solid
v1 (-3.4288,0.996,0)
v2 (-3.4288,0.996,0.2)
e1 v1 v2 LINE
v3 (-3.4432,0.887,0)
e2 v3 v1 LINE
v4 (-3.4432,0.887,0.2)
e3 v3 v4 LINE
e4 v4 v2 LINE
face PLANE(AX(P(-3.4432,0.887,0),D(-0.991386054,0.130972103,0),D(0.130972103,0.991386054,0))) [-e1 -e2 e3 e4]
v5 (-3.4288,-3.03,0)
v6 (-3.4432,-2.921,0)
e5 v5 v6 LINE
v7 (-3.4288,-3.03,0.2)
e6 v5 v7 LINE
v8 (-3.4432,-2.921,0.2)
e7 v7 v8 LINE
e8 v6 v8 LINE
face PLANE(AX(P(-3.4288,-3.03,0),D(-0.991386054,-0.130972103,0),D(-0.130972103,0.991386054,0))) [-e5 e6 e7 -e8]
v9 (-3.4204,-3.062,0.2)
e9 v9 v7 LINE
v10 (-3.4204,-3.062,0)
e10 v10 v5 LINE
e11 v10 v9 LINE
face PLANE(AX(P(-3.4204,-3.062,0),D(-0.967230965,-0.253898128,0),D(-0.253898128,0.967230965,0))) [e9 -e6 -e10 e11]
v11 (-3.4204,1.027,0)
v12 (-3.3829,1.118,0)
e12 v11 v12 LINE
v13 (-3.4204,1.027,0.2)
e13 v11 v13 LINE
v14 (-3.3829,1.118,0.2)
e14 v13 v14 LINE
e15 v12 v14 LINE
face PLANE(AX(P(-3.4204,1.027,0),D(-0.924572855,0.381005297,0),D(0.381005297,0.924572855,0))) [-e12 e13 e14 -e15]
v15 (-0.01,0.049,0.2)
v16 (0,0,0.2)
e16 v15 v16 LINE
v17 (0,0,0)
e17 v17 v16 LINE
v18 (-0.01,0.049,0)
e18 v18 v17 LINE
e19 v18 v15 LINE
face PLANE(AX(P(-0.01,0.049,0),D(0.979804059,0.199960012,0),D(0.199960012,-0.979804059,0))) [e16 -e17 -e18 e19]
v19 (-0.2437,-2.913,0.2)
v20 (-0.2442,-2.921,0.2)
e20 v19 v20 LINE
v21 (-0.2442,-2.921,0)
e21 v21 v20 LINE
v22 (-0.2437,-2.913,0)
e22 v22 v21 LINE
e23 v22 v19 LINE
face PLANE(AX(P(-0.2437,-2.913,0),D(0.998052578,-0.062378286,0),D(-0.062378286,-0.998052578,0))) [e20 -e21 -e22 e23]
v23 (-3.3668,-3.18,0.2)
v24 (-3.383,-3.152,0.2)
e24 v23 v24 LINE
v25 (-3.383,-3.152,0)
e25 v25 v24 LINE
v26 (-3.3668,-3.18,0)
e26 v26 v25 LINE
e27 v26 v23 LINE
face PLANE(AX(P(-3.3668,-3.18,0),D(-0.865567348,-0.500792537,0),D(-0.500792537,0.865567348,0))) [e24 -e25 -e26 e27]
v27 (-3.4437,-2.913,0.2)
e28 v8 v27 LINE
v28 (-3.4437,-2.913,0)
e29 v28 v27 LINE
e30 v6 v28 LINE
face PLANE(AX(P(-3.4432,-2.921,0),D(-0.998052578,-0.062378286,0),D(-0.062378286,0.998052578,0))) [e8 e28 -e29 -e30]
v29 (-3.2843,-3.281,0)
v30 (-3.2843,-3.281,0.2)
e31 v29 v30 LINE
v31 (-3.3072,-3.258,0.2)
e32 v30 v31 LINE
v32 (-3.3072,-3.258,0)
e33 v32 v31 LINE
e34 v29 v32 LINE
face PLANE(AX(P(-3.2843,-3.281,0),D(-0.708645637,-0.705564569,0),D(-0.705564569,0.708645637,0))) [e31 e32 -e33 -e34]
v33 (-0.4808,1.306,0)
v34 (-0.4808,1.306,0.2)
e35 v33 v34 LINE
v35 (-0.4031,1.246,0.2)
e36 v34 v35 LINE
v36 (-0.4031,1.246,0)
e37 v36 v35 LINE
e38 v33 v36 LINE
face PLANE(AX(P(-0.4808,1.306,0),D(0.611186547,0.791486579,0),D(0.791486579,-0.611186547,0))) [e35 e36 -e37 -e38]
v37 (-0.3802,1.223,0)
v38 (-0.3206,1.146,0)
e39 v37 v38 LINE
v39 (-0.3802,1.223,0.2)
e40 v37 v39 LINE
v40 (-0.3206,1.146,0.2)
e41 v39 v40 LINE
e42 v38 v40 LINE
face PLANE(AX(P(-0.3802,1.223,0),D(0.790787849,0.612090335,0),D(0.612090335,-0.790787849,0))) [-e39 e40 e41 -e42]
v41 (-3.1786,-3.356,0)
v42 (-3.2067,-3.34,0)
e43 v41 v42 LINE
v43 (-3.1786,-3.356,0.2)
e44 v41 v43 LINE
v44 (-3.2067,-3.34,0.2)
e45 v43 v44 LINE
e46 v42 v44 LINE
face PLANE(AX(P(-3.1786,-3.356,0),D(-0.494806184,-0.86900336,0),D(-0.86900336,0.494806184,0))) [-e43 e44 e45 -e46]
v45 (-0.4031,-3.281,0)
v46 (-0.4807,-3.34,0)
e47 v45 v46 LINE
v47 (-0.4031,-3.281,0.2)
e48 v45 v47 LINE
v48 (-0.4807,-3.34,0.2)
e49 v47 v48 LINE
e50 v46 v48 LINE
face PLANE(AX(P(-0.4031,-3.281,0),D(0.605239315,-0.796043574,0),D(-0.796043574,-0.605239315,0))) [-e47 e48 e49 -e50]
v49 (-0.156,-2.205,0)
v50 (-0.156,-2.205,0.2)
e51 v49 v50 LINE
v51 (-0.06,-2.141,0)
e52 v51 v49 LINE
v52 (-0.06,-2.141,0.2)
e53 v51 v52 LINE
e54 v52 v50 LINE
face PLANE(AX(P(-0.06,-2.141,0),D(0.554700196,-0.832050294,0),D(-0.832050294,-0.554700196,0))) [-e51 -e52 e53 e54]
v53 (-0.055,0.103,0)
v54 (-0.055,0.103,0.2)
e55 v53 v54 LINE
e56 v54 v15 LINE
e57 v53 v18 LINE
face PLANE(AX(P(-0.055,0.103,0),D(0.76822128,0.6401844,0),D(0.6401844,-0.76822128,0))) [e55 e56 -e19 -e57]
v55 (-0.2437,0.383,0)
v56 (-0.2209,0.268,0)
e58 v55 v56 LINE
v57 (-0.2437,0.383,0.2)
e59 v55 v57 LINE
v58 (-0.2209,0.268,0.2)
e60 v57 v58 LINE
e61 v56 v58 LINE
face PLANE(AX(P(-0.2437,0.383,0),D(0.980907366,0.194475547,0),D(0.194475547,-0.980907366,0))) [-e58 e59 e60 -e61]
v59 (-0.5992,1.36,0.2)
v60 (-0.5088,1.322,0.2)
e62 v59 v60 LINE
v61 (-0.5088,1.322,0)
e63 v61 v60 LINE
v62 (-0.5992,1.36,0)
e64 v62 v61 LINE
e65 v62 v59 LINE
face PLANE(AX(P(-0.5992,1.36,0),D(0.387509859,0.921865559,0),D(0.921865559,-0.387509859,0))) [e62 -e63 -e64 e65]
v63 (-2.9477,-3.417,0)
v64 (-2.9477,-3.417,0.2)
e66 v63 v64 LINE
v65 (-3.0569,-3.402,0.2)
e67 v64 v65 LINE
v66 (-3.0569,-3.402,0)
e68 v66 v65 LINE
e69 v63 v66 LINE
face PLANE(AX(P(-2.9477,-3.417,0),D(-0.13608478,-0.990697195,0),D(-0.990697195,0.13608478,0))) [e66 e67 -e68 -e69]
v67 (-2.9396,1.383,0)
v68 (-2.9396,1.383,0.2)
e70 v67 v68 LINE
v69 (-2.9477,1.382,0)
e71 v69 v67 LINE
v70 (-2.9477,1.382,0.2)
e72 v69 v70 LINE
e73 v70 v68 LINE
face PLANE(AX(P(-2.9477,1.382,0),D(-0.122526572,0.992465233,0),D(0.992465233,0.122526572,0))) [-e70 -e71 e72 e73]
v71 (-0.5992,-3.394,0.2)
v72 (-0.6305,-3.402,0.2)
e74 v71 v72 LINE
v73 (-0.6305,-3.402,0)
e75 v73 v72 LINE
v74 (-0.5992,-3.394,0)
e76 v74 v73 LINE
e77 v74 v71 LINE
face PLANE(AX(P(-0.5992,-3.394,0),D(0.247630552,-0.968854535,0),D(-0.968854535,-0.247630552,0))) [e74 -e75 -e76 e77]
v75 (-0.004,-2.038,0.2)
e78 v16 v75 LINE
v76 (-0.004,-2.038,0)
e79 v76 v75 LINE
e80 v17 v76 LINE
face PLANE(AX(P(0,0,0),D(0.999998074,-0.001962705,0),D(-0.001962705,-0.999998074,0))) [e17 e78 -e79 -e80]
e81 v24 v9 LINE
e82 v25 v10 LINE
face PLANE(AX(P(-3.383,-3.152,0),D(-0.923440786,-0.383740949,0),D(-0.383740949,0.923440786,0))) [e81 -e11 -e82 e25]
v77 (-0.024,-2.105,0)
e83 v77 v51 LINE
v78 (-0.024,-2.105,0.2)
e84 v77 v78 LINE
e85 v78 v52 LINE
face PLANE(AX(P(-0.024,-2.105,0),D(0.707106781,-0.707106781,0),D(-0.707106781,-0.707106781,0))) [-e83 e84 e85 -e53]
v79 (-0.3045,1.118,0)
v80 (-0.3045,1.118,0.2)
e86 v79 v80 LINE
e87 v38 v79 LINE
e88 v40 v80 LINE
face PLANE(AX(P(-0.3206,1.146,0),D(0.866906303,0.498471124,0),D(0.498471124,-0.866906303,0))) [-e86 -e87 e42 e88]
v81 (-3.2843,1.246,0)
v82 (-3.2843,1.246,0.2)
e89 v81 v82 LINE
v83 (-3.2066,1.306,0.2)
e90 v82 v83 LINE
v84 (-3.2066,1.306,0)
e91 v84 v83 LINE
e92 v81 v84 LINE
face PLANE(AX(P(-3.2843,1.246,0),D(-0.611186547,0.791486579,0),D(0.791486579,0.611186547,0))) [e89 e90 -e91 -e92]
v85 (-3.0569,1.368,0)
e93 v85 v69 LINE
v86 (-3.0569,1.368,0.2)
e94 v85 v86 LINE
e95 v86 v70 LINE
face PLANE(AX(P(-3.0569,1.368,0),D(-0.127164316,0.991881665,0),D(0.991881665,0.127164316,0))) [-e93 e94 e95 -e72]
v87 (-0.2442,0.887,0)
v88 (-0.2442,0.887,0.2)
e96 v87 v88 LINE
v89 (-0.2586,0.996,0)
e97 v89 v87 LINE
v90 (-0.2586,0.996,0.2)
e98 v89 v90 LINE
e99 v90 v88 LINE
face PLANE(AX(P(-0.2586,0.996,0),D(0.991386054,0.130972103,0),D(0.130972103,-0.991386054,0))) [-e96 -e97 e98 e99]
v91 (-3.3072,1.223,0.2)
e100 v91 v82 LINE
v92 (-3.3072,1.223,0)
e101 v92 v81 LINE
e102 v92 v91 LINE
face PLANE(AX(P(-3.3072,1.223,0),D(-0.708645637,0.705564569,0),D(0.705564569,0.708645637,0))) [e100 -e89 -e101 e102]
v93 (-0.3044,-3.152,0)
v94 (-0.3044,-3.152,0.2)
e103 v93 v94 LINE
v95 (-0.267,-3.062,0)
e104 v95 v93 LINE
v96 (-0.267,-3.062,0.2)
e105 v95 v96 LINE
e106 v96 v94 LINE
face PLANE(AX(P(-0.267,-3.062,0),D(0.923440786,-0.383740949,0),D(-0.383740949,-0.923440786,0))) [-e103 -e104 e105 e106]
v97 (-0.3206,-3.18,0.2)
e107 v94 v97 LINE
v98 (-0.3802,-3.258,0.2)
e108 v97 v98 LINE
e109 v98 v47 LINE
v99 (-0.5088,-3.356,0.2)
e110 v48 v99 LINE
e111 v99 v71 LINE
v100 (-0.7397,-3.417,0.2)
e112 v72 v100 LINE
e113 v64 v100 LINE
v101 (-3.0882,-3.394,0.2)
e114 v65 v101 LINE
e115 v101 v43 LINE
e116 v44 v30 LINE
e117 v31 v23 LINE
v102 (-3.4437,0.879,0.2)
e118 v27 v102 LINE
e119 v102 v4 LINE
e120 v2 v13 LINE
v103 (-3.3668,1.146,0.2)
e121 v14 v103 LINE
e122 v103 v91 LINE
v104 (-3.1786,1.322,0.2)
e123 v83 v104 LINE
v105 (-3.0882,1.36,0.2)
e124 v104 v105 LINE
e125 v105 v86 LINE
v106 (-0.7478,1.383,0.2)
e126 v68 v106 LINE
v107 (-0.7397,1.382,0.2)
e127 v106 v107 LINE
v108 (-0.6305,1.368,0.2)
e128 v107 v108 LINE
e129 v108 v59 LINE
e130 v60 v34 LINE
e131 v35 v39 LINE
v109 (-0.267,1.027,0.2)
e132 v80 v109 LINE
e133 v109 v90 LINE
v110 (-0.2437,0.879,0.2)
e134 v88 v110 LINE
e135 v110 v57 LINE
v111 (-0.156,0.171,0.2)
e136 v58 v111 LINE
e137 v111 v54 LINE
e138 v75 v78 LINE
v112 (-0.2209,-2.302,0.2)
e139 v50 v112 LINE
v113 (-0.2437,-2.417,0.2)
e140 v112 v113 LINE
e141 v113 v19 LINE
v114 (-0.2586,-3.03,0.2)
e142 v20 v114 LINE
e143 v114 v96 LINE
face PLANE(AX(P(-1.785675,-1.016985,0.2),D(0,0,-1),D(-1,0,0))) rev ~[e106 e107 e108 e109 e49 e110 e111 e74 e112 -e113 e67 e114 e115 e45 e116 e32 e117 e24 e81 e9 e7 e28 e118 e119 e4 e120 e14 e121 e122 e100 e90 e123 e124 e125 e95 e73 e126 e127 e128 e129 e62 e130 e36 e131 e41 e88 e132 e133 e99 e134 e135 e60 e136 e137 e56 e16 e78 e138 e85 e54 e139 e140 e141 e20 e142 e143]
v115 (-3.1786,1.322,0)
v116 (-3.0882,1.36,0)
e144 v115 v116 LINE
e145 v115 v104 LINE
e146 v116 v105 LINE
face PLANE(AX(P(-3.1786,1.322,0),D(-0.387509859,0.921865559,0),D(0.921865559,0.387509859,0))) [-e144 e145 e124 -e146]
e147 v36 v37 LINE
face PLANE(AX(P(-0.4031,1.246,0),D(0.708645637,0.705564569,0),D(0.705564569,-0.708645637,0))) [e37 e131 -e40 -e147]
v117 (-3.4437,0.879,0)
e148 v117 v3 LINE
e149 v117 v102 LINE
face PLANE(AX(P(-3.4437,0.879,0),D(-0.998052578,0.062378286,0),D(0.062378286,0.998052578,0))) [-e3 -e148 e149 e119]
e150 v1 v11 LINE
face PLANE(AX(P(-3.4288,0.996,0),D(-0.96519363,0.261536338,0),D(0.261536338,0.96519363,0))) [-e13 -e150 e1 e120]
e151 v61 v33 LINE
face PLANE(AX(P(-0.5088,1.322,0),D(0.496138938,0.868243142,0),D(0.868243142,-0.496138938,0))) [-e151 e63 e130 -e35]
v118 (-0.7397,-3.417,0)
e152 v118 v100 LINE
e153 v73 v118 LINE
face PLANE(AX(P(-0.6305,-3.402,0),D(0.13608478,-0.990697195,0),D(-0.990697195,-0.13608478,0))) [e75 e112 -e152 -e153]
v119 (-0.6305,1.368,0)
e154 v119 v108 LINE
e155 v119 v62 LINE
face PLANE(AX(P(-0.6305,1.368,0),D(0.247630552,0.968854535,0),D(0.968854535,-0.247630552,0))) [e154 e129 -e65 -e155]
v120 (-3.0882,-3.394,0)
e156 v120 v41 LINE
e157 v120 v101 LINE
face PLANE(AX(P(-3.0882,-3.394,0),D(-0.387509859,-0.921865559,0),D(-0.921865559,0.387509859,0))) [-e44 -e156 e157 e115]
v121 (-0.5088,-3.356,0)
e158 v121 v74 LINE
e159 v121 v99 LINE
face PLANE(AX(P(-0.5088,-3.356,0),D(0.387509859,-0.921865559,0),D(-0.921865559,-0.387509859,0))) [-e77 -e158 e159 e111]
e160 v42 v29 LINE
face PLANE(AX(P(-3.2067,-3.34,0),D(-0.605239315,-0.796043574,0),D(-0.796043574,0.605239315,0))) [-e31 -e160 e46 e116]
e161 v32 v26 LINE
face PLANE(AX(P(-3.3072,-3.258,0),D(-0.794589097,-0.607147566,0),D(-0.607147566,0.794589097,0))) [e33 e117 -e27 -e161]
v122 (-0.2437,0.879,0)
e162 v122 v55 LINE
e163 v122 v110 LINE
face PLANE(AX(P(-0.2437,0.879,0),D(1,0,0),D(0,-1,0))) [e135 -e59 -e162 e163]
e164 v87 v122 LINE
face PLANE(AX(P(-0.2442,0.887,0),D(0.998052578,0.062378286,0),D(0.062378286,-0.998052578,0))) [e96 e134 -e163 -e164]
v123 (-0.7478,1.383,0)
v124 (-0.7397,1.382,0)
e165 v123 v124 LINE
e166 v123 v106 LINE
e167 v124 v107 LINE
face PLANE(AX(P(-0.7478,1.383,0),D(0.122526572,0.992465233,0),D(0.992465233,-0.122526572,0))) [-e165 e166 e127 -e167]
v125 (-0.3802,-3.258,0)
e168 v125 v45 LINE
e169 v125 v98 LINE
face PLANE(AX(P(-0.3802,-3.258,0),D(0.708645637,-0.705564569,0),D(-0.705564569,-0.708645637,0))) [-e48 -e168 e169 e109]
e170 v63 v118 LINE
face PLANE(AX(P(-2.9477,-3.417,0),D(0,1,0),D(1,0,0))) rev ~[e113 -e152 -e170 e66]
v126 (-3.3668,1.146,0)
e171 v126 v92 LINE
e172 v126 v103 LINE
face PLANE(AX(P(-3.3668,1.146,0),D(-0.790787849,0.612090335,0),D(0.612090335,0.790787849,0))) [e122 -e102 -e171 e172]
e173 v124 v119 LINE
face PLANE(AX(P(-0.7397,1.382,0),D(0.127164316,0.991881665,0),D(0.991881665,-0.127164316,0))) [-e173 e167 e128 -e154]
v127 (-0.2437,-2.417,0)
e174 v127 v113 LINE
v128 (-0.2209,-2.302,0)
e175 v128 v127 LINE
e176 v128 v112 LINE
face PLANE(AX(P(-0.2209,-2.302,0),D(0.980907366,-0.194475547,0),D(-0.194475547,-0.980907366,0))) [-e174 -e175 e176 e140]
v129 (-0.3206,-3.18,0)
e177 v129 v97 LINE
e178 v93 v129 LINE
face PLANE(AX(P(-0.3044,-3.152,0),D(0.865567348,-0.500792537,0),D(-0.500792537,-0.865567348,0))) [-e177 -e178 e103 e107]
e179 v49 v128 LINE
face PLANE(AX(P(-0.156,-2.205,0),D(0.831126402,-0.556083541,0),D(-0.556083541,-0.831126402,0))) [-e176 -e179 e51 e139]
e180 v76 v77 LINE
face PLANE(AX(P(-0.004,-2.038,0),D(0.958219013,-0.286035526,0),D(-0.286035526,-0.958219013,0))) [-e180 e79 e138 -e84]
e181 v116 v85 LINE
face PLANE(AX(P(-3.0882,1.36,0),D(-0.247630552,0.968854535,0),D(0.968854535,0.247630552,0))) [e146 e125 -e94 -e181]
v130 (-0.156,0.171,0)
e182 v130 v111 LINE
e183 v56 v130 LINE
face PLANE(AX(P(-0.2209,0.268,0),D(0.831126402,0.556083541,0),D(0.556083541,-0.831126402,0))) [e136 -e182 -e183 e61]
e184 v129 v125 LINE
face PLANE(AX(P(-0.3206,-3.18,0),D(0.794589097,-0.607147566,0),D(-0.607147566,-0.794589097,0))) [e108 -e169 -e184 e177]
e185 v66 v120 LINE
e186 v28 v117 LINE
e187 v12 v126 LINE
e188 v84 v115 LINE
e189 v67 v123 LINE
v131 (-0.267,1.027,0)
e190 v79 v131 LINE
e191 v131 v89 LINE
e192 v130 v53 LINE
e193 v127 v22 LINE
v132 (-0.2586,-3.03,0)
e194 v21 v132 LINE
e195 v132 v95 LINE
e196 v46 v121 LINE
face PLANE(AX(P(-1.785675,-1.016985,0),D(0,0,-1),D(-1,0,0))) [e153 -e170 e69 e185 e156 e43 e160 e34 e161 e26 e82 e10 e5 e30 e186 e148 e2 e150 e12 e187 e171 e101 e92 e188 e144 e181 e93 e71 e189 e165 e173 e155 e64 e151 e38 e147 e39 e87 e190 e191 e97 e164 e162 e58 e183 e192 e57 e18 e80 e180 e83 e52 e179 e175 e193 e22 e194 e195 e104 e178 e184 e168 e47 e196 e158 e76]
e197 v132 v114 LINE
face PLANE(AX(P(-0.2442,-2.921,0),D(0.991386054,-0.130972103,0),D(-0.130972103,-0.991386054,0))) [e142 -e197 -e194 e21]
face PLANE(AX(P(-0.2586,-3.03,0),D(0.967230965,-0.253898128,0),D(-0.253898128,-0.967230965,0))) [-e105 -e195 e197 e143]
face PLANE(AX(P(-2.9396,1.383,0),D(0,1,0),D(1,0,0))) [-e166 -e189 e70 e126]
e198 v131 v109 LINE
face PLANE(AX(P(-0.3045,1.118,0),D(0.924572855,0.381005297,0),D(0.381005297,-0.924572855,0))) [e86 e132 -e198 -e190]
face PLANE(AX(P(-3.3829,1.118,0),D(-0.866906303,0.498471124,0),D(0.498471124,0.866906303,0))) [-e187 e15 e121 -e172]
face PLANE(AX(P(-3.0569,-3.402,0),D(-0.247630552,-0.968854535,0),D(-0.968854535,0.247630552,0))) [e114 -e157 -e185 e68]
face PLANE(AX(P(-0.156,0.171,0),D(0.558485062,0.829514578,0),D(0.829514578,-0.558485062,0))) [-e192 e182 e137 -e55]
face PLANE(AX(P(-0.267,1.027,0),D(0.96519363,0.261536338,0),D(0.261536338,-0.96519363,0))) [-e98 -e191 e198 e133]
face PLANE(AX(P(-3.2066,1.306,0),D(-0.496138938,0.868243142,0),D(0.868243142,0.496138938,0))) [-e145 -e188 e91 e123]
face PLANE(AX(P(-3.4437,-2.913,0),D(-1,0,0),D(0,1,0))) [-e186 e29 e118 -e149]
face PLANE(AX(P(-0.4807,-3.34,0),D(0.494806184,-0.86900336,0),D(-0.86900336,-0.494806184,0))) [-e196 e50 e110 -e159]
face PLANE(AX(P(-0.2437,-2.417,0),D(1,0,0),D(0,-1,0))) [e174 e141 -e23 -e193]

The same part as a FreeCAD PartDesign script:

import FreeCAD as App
import Part
import Sketcher
from FreeCAD import Vector
Q = App.Units.Quantity

doc = App.newDocument("Part")
body = doc.addObject("PartDesign::Body", "Body")

# Sketch on XY plane
sketch1 = body.newObject("Sketcher::SketchObject", "Sketch")
sketch1.AttachmentSupport = (doc.getObject("XY_Plane"), [""])
sketch1.MapMode = "FlatFace"
sketch1.addGeometry([
    Part.LineSegment(Vector(-0.6305, 1.368, 0), Vector(-0.7397, 1.382, 0)),  # 0
    Part.LineSegment(Vector(-0.7397, 1.382, 0), Vector(-0.7478, 1.383, 0)),  # 1
    Part.LineSegment(Vector(-0.7478, 1.383, 0), Vector(-2.9396, 1.383, 0)),  # 2
    Part.LineSegment(Vector(-2.9396, 1.383, 0), Vector(-2.9477, 1.382, 0)),  # 3
    Part.LineSegment(Vector(-2.9477, 1.382, 0), Vector(-3.0569, 1.368, 0)),  # 4
    Part.LineSegment(Vector(-3.0569, 1.368, 0), Vector(-3.0882, 1.36, 0)),  # 5
    Part.LineSegment(Vector(-3.0882, 1.36, 0), Vector(-3.1786, 1.322, 0)),  # 6
    Part.LineSegment(Vector(-3.1786, 1.322, 0), Vector(-3.2066, 1.306, 0)),  # 7
    Part.LineSegment(Vector(-3.2066, 1.306, 0), Vector(-3.2843, 1.246, 0)),  # 8
    Part.LineSegment(Vector(-3.2843, 1.246, 0), Vector(-3.3072, 1.223, 0)),  # 9
    Part.LineSegment(Vector(-3.3072, 1.223, 0), Vector(-3.3668, 1.146, 0)),  # 10
    Part.LineSegment(Vector(-3.3668, 1.146, 0), Vector(-3.3829, 1.118, 0)),  # 11
    Part.LineSegment(Vector(-3.3829, 1.118, 0), Vector(-3.4204, 1.027, 0)),  # 12
    Part.LineSegment(Vector(-3.4204, 1.027, 0), Vector(-3.4288, 0.996, 0)),  # 13
    Part.LineSegment(Vector(-3.4288, 0.996, 0), Vector(-3.4432, 0.887, 0)),  # 14
    Part.LineSegment(Vector(-3.4432, 0.887, 0), Vector(-3.4437, 0.879, 0)),  # 15
    Part.LineSegment(Vector(-3.4437, 0.879, 0), Vector(-3.4437, -2.913, 0)),  # 16
    Part.LineSegment(Vector(-3.4437, -2.913, 0), Vector(-3.4432, -2.921, 0)),  # 17
    Part.LineSegment(Vector(-3.4432, -2.921, 0), Vector(-3.4288, -3.03, 0)),  # 18
    Part.LineSegment(Vector(-3.4288, -3.03, 0), Vector(-3.4204, -3.062, 0)),  # 19
    Part.LineSegment(Vector(-3.4204, -3.062, 0), Vector(-3.383, -3.152, 0)),  # 20
    Part.LineSegment(Vector(-3.383, -3.152, 0), Vector(-3.3668, -3.18, 0)),  # 21
    Part.LineSegment(Vector(-3.3668, -3.18, 0), Vector(-3.3072, -3.258, 0)),  # 22
    Part.LineSegment(Vector(-3.3072, -3.258, 0), Vector(-3.2843, -3.281, 0)),  # 23
    Part.LineSegment(Vector(-3.2843, -3.281, 0), Vector(-3.2067, -3.34, 0)),  # 24
    Part.LineSegment(Vector(-3.2067, -3.34, 0), Vector(-3.1786, -3.356, 0)),  # 25
    Part.LineSegment(Vector(-3.1786, -3.356, 0), Vector(-3.0882, -3.394, 0)),  # 26
    Part.LineSegment(Vector(-3.0882, -3.394, 0), Vector(-3.0569, -3.402, 0)),  # 27
    Part.LineSegment(Vector(-3.0569, -3.402, 0), Vector(-2.9477, -3.417, 0)),  # 28
    Part.LineSegment(Vector(-2.9477, -3.417, 0), Vector(-0.7397, -3.417, 0)),  # 29
    Part.LineSegment(Vector(-0.7397, -3.417, 0), Vector(-0.6305, -3.402, 0)),  # 30
    Part.LineSegment(Vector(-0.6305, -3.402, 0), Vector(-0.5992, -3.394, 0)),  # 31
    Part.LineSegment(Vector(-0.5992, -3.394, 0), Vector(-0.5088, -3.356, 0)),  # 32
    Part.LineSegment(Vector(-0.5088, -3.356, 0), Vector(-0.4807, -3.34, 0)),  # 33
    Part.LineSegment(Vector(-0.4807, -3.34, 0), Vector(-0.4031, -3.281, 0)),  # 34
    Part.LineSegment(Vector(-0.4031, -3.281, 0), Vector(-0.3802, -3.258, 0)),  # 35
    Part.LineSegment(Vector(-0.3802, -3.258, 0), Vector(-0.3206, -3.18, 0)),  # 36
    Part.LineSegment(Vector(-0.3206, -3.18, 0), Vector(-0.3044, -3.152, 0)),  # 37
    Part.LineSegment(Vector(-0.3044, -3.152, 0), Vector(-0.267, -3.062, 0)),  # 38
    Part.LineSegment(Vector(-0.267, -3.062, 0), Vector(-0.2586, -3.03, 0)),  # 39
    Part.LineSegment(Vector(-0.2586, -3.03, 0), Vector(-0.2442, -2.921, 0)),  # 40
    Part.LineSegment(Vector(-0.2442, -2.921, 0), Vector(-0.2437, -2.913, 0)),  # 41
    Part.LineSegment(Vector(-0.2437, -2.913, 0), Vector(-0.2437, -2.417, 0)),  # 42
    Part.LineSegment(Vector(-0.2437, -2.417, 0), Vector(-0.2209, -2.302, 0)),  # 43
    Part.LineSegment(Vector(-0.2209, -2.302, 0), Vector(-0.156, -2.205, 0)),  # 44
    Part.LineSegment(Vector(-0.156, -2.205, 0), Vector(-0.06, -2.141, 0)),  # 45
    Part.LineSegment(Vector(-0.06, -2.141, 0), Vector(-0.024, -2.105, 0)),  # 46
    Part.LineSegment(Vector(-0.024, -2.105, 0), Vector(-0.004, -2.038, 0)),  # 47
    Part.LineSegment(Vector(-0.004, -2.038, 0), Vector(0, 0, 0)),  # 48
    Part.LineSegment(Vector(0, 0, 0), Vector(-0.01, 0.049, 0)),  # 49
    Part.LineSegment(Vector(-0.01, 0.049, 0), Vector(-0.055, 0.103, 0)),  # 50
    Part.LineSegment(Vector(-0.055, 0.103, 0), Vector(-0.156, 0.171, 0)),  # 51
    Part.LineSegment(Vector(-0.156, 0.171, 0), Vector(-0.2209, 0.268, 0)),  # 52
    Part.LineSegment(Vector(-0.2209, 0.268, 0), Vector(-0.2437, 0.383, 0)),  # 53
    Part.LineSegment(Vector(-0.2437, 0.383, 0), Vector(-0.2437, 0.879, 0)),  # 54
    Part.LineSegment(Vector(-0.2437, 0.879, 0), Vector(-0.2442, 0.887, 0)),  # 55
    Part.LineSegment(Vector(-0.2442, 0.887, 0), Vector(-0.2586, 0.996, 0)),  # 56
    Part.LineSegment(Vector(-0.2586, 0.996, 0), Vector(-0.267, 1.027, 0)),  # 57
    Part.LineSegment(Vector(-0.267, 1.027, 0), Vector(-0.3045, 1.118, 0)),  # 58
    Part.LineSegment(Vector(-0.3045, 1.118, 0), Vector(-0.3206, 1.146, 0)),  # 59
    Part.LineSegment(Vector(-0.3206, 1.146, 0), Vector(-0.3802, 1.223, 0)),  # 60
    Part.LineSegment(Vector(-0.3802, 1.223, 0), Vector(-0.4031, 1.246, 0)),  # 61
    Part.LineSegment(Vector(-0.4031, 1.246, 0), Vector(-0.4808, 1.306, 0)),  # 62
    Part.LineSegment(Vector(-0.4808, 1.306, 0), Vector(-0.5088, 1.322, 0)),  # 63
    Part.LineSegment(Vector(-0.5088, 1.322, 0), Vector(-0.5992, 1.36, 0)),  # 64
    Part.LineSegment(Vector(-0.5992, 1.36, 0), Vector(-0.6305, 1.368, 0)),  # 65
], False)
sketch1.addConstraint([
    Sketcher.Constraint("Coincident", 0, 2, 1, 1),
    Sketcher.Constraint("Coincident", 1, 2, 2, 1),
    Sketcher.Constraint("Coincident", 2, 2, 3, 1),
    Sketcher.Constraint("Coincident", 3, 2, 4, 1),
    Sketcher.Constraint("Coincident", 4, 2, 5, 1),
    Sketcher.Constraint("Coincident", 5, 2, 6, 1),
    Sketcher.Constraint("Coincident", 6, 2, 7, 1),
    Sketcher.Constraint("Coincident", 7, 2, 8, 1),
    Sketcher.Constraint("Coincident", 8, 2, 9, 1),
    Sketcher.Constraint("Coincident", 9, 2, 10, 1),
    Sketcher.Constraint("Coincident", 10, 2, 11, 1),
    Sketcher.Constraint("Coincident", 11, 2, 12, 1),
    Sketcher.Constraint("Coincident", 12, 2, 13, 1),
    Sketcher.Constraint("Coincident", 13, 2, 14, 1),
    Sketcher.Constraint("Coincident", 14, 2, 15, 1),
    Sketcher.Constraint("Coincident", 15, 2, 16, 1),
    Sketcher.Constraint("Coincident", 16, 2, 17, 1),
    Sketcher.Constraint("Coincident", 17, 2, 18, 1),
    Sketcher.Constraint("Coincident", 18, 2, 19, 1),
    Sketcher.Constraint("Coincident", 19, 2, 20, 1),
    Sketcher.Constraint("Coincident", 20, 2, 21, 1),
    Sketcher.Constraint("Coincident", 21, 2, 22, 1),
    Sketcher.Constraint("Coincident", 22, 2, 23, 1),
    Sketcher.Constraint("Coincident", 23, 2, 24, 1),
    Sketcher.Constraint("Coincident", 24, 2, 25, 1),
    Sketcher.Constraint("Coincident", 25, 2, 26, 1),
    Sketcher.Constraint("Coincident", 26, 2, 27, 1),
    Sketcher.Constraint("Coincident", 27, 2, 28, 1),
    Sketcher.Constraint("Coincident", 28, 2, 29, 1),
    Sketcher.Constraint("Coincident", 29, 2, 30, 1),
    Sketcher.Constraint("Coincident", 30, 2, 31, 1),
    Sketcher.Constraint("Coincident", 31, 2, 32, 1),
    Sketcher.Constraint("Coincident", 32, 2, 33, 1),
    Sketcher.Constraint("Coincident", 33, 2, 34, 1),
    Sketcher.Constraint("Coincident", 34, 2, 35, 1),
    Sketcher.Constraint("Coincident", 35, 2, 36, 1),
    Sketcher.Constraint("Coincident", 36, 2, 37, 1),
    Sketcher.Constraint("Coincident", 37, 2, 38, 1),
    Sketcher.Constraint("Coincident", 38, 2, 39, 1),
    Sketcher.Constraint("Coincident", 39, 2, 40, 1),
    Sketcher.Constraint("Coincident", 40, 2, 41, 1),
    Sketcher.Constraint("Coincident", 41, 2, 42, 1),
    Sketcher.Constraint("Coincident", 42, 2, 43, 1),
    Sketcher.Constraint("Coincident", 43, 2, 44, 1),
    Sketcher.Constraint("Coincident", 44, 2, 45, 1),
    Sketcher.Constraint("Coincident", 45, 2, 46, 1),
    Sketcher.Constraint("Coincident", 46, 2, 47, 1),
    Sketcher.Constraint("Coincident", 47, 2, 48, 1),
    Sketcher.Constraint("Coincident", 48, 2, 49, 1),
    Sketcher.Constraint("Coincident", 49, 2, 50, 1),
    Sketcher.Constraint("Coincident", 50, 2, 51, 1),
    Sketcher.Constraint("Coincident", 51, 2, 52, 1),
    Sketcher.Constraint("Coincident", 52, 2, 53, 1),
    Sketcher.Constraint("Coincident", 53, 2, 54, 1),
    Sketcher.Constraint("Coincident", 54, 2, 55, 1),
    Sketcher.Constraint("Coincident", 55, 2, 56, 1),
    Sketcher.Constraint("Coincident", 56, 2, 57, 1),
    Sketcher.Constraint("Coincident", 57, 2, 58, 1),
    Sketcher.Constraint("Coincident", 58, 2, 59, 1),
    Sketcher.Constraint("Coincident", 59, 2, 60, 1),
    Sketcher.Constraint("Coincident", 60, 2, 61, 1),
    Sketcher.Constraint("Coincident", 61, 2, 62, 1),
    Sketcher.Constraint("Coincident", 62, 2, 63, 1),
    Sketcher.Constraint("Coincident", 63, 2, 64, 1),
    Sketcher.Constraint("Coincident", 64, 2, 65, 1),
    Sketcher.Constraint("Coincident", 65, 2, 0, 1),
    Sketcher.Constraint("Horizontal", 2),
    Sketcher.Constraint("Vertical", 16),
    Sketcher.Constraint("Horizontal", 29),
    Sketcher.Constraint("Vertical", 42),
    Sketcher.Constraint("Vertical", 54),
    Sketcher.Constraint("Coincident", 48, 2, -1, 1),
    Sketcher.Constraint("Parallel", 5, 31),
    Sketcher.Constraint("Parallel", 6, 32),
    Sketcher.Constraint("Parallel", 9, 35),
    Sketcher.Constraint("Parallel", 14, 40),
    Sketcher.Constraint("Parallel", 15, 41),
    Sketcher.Constraint("Parallel", 17, 55),
    Sketcher.Constraint("Parallel", 18, 56),
    Sketcher.Constraint("Parallel", 23, 61),
    Sketcher.Constraint("Parallel", 26, 64),
    Sketcher.Constraint("Parallel", 27, 65),
    Sketcher.Constraint("Horizontal", 0, 2, 3, 2),
    Sketcher.Constraint("Horizontal", 27, 2, 30, 2),
    Sketcher.Constraint("Horizontal", 26, 2, 31, 2),
    Sketcher.Constraint("Horizontal", 25, 2, 32, 2),
    Sketcher.Constraint("Horizontal", 24, 2, 33, 2),
    Sketcher.Constraint("Horizontal", 23, 2, 34, 2),
    Sketcher.Constraint("Horizontal", 22, 2, 35, 2),
    Sketcher.Constraint("Horizontal", 21, 2, 36, 2),
    Sketcher.Constraint("Horizontal", 20, 2, 37, 2),
    Sketcher.Constraint("Horizontal", 19, 2, 38, 2),
    Sketcher.Constraint("Horizontal", 18, 2, 39, 2),
    Sketcher.Constraint("Horizontal", 17, 2, 40, 2),
    Sketcher.Constraint("Horizontal", 16, 2, 41, 2),
    Sketcher.Constraint("Horizontal", 15, 2, 54, 2),
    Sketcher.Constraint("Horizontal", 14, 2, 55, 2),
    Sketcher.Constraint("Horizontal", 13, 2, 56, 2),
    Sketcher.Constraint("Horizontal", 12, 2, 57, 2),
    Sketcher.Constraint("Horizontal", 11, 2, 58, 2),
    Sketcher.Constraint("Horizontal", 10, 2, 59, 2),
    Sketcher.Constraint("Horizontal", 9, 2, 60, 2),
    Sketcher.Constraint("Horizontal", 8, 2, 61, 2),
    Sketcher.Constraint("Horizontal", 7, 2, 62, 2),
    Sketcher.Constraint("Horizontal", 6, 2, 63, 2),
    Sketcher.Constraint("Horizontal", 5, 2, 64, 2),
    Sketcher.Constraint("Horizontal", 4, 2, 65, 2),
    Sketcher.Constraint("Vertical", 14, 2, 17, 2),
    Sketcher.Constraint("Vertical", 13, 2, 18, 2),
    Sketcher.Constraint("Vertical", 12, 2, 19, 2),
    Sketcher.Constraint("Vertical", 10, 2, 21, 2),
    Sketcher.Constraint("Vertical", 9, 2, 22, 2),
    Sketcher.Constraint("Vertical", 8, 2, 23, 2),
    Sketcher.Constraint("Vertical", 6, 2, 25, 2),
    Sketcher.Constraint("Vertical", 5, 2, 26, 2),
    Sketcher.Constraint("Vertical", 4, 2, 27, 2),
    Sketcher.Constraint("Vertical", 3, 2, 28, 2),
    Sketcher.Constraint("Vertical", 0, 2, 29, 2),
    Sketcher.Constraint("Vertical", 44, 2, 51, 2),
    Sketcher.Constraint("Vertical", 43, 2, 52, 2),
    Sketcher.Constraint("Vertical", 42, 2, 53, 2),
    Sketcher.Constraint("Vertical", 40, 2, 55, 2),
    Sketcher.Constraint("Vertical", 39, 2, 56, 2),
    Sketcher.Constraint("Vertical", 38, 2, 57, 2),
    Sketcher.Constraint("Vertical", 36, 2, 59, 2),
    Sketcher.Constraint("Vertical", 35, 2, 60, 2),
    Sketcher.Constraint("Vertical", 34, 2, 61, 2),
    Sketcher.Constraint("Vertical", 32, 2, 63, 2),
    Sketcher.Constraint("Vertical", 31, 2, 64, 2),
    Sketcher.Constraint("Vertical", 30, 2, 65, 2),
    Sketcher.Constraint("Equal", 42, 54),
    Sketcher.Constraint("Equal", 1, 3),
    Sketcher.Constraint("Equal", 0, 4),
    Sketcher.Constraint("Equal", 25, 33),
    Sketcher.Constraint("Equal", 24, 34),
    Sketcher.Constraint("Equal", 22, 36),
    Sketcher.Constraint("Equal", 21, 37),
    Sketcher.Constraint("Equal", 20, 38),
    Sketcher.Constraint("Equal", 19, 39),
    Sketcher.Constraint("Equal", 44, 52),
    Sketcher.Constraint("Equal", 43, 53),
    Sketcher.Constraint("Equal", 12, 58),
    Sketcher.Constraint("Equal", 8, 62),
    Sketcher.Constraint("Angle", 46, Q("45 deg")),
    Sketcher.Constraint("DistanceX", 29, 1, 29, 2, 2.208),
    Sketcher.Constraint("DistanceY", 16, 2, 16, 1, 3.792),
    Sketcher.Constraint("DistanceY", 42, 1, 42, 2, 0.496),
    Sketcher.Constraint("DistanceY", -1, 1, 5, 2, 1.36),
    Sketcher.Constraint("DistanceY", 18, 2, -1, 1, 3.03),
    Sketcher.Constraint("DistanceY", 21, 2, -1, 1, 3.18),
    Sketcher.Constraint("DistanceY", 24, 2, -1, 1, 3.34),
    Sketcher.Constraint("DistanceX", 45, 2, -1, 1, 0.06),
    Sketcher.Constraint("DistanceX", 49, 2, -1, 1, 0.01),
    Sketcher.Constraint("DistanceX", 2, 2, 2, 1, 2.1918),
    Sketcher.Constraint("DistanceY", -1, 1, 0, 2, 1.382),
    Sketcher.Constraint("DistanceY", -1, 1, 1, 2, 1.383),
    Sketcher.Constraint("DistanceY", -1, 1, 4, 2, 1.368),
    Sketcher.Constraint("DistanceY", -1, 1, 6, 2, 1.322),
    Sketcher.Constraint("DistanceY", -1, 1, 7, 2, 1.306),
    Sketcher.Constraint("DistanceY", -1, 1, 8, 2, 1.246),
    Sketcher.Constraint("DistanceY", -1, 1, 9, 2, 1.223),
    Sketcher.Constraint("DistanceY", -1, 1, 10, 2, 1.146),
    Sketcher.Constraint("DistanceY", -1, 1, 11, 2, 1.118),
    Sketcher.Constraint("DistanceY", -1, 1, 12, 2, 1.027),
    Sketcher.Constraint("DistanceY", -1, 1, 13, 2, 0.996),
    Sketcher.Constraint("DistanceY", -1, 1, 14, 2, 0.887),
    Sketcher.Constraint("DistanceY", 19, 2, -1, 1, 3.062),
    Sketcher.Constraint("DistanceX", 20, 2, -1, 1, 3.383),
    Sketcher.Constraint("DistanceY", 20, 2, -1, 1, 3.152),
    Sketcher.Constraint("DistanceY", 22, 2, -1, 1, 3.258),
    Sketcher.Constraint("DistanceY", 25, 2, -1, 1, 3.356),
    Sketcher.Constraint("DistanceY", 28, 2, -1, 1, 3.417),
    Sketcher.Constraint("DistanceX", 38, 2, -1, 1, 0.267),
    Sketcher.Constraint("DistanceY", 43, 2, -1, 1, 2.302),
    Sketcher.Constraint("DistanceX", 44, 2, -1, 1, 0.156),
    Sketcher.Constraint("DistanceY", 44, 2, -1, 1, 2.205),
    Sketcher.Constraint("DistanceY", 45, 2, -1, 1, 2.141),
    Sketcher.Constraint("DistanceX", 46, 2, -1, 1, 0.024),
    Sketcher.Constraint("DistanceX", 47, 2, -1, 1, 0.004),
    Sketcher.Constraint("DistanceY", 47, 2, -1, 1, 2.038),
    Sketcher.Constraint("DistanceY", -1, 1, 49, 2, 0.049),
    Sketcher.Constraint("DistanceX", 50, 2, -1, 1, 0.055),
    Sketcher.Constraint("DistanceY", -1, 1, 50, 2, 0.103),
    Sketcher.Constraint("Distance", 11, 0.032299),
    Sketcher.Constraint("DistanceX", 0, 2, -1, 1, 0.7397),
    Sketcher.Constraint("DistanceX", 4, 2, -1, 1, 3.0569),
    Sketcher.Constraint("DistanceX", 5, 2, -1, 1, 3.0882),
    Sketcher.Constraint("DistanceX", 6, 2, -1, 1, 3.1786),
    Sketcher.Constraint("DistanceX", 7, 2, -1, 1, 3.2066),
    Sketcher.Constraint("DistanceX", 8, 2, -1, 1, 3.2843),
    Sketcher.Constraint("DistanceX", 9, 2, -1, 1, 3.3072),
    Sketcher.Constraint("DistanceX", 10, 2, -1, 1, 3.3668),
    Sketcher.Constraint("DistanceX", 13, 2, -1, 1, 3.4288),
    Sketcher.Constraint("DistanceX", 14, 2, -1, 1, 3.4432),
    Sketcher.Constraint("DistanceX", 15, 2, -1, 1, 3.4437),
    Sketcher.Constraint("DistanceX", 24, 2, -1, 1, 3.2067),
    Sketcher.Constraint("DistanceX", 43, 2, -1, 1, 0.2209),
])
pad1 = body.newObject("PartDesign::Pad", "Pad")
pad1.Profile = sketch1
pad1.Length = 0.2
body2 = doc.addObject("PartDesign::Body", "Body001")

# Sketch on XY plane
sketch2 = body2.newObject("Sketcher::SketchObject", "Sketch001")
sketch2.AttachmentSupport = (doc.getObject("XY_Plane001"), [""])
sketch2.MapMode = "FlatFace"
sketch2.addGeometry([
    Part.LineSegment(Vector(25.127, 4.355, 0), Vector(25.081, 4.408, 0)),  # 0
    Part.LineSegment(Vector(25.081, 4.408, 0), Vector(25.014, 4.428, 0)),  # 1
    Part.LineSegment(Vector(25.014, 4.428, 0), Vector(23.762, 4.428, 0)),  # 2
    Part.LineSegment(Vector(23.762, 4.428, 0), Vector(23.711, 4.416, 0)),  # 3
    Part.LineSegment(Vector(23.711, 4.416, 0), Vector(23.658, 4.371, 0)),  # 4
    Part.LineSegment(Vector(23.658, 4.371, 0), Vector(23.638, 4.304, 0)),  # 5
    Part.LineSegment(Vector(23.638, 4.304, 0), Vector(23.638, 3.44, 0)),  # 6
    Part.LineSegment(Vector(23.638, 3.44, 0), Vector(23.64, 3.416, 0)),  # 7
    Part.LineSegment(Vector(23.64, 3.416, 0), Vector(23.648, 3.375, 0)),  # 8
    Part.LineSegment(Vector(23.648, 3.375, 0), Vector(23.667, 3.331, 0)),  # 9
    Part.LineSegment(Vector(23.667, 3.331, 0), Vector(23.683, 3.307, 0)),  # 10
    Part.LineSegment(Vector(23.683, 3.307, 0), Vector(23.717, 3.273, 0)),  # 11
    Part.LineSegment(Vector(23.717, 3.273, 0), Vector(23.741, 3.257, 0)),  # 12
    Part.LineSegment(Vector(23.741, 3.257, 0), Vector(23.786, 3.238, 0)),  # 13
    Part.LineSegment(Vector(23.786, 3.238, 0), Vector(23.826, 3.23, 0)),  # 14
    Part.LineSegment(Vector(23.826, 3.23, 0), Vector(23.85, 3.228, 0)),  # 15
    Part.LineSegment(Vector(23.85, 3.228, 0), Vector(24.926, 3.228, 0)),  # 16
    Part.LineSegment(Vector(24.926, 3.228, 0), Vector(24.95, 3.23, 0)),  # 17
    Part.LineSegment(Vector(24.95, 3.23, 0), Vector(24.99, 3.238, 0)),  # 18
    Part.LineSegment(Vector(24.99, 3.238, 0), Vector(25.035, 3.257, 0)),  # 19
    Part.LineSegment(Vector(25.035, 3.257, 0), Vector(25.059, 3.273, 0)),  # 20
    Part.LineSegment(Vector(25.059, 3.273, 0), Vector(25.093, 3.307, 0)),  # 21
    Part.LineSegment(Vector(25.093, 3.307, 0), Vector(25.109, 3.331, 0)),  # 22
    Part.LineSegment(Vector(25.109, 3.331, 0), Vector(25.128, 3.375, 0)),  # 23
    Part.LineSegment(Vector(25.128, 3.375, 0), Vector(25.136, 3.416, 0)),  # 24
    Part.LineSegment(Vector(25.136, 3.416, 0), Vector(25.138, 3.44, 0)),  # 25
    Part.LineSegment(Vector(25.138, 3.44, 0), Vector(25.138, 4.304, 0)),  # 26
    Part.LineSegment(Vector(25.138, 4.304, 0), Vector(25.127, 4.355, 0)),  # 27
], False)
sketch2.addConstraint([
    Sketcher.Constraint("Coincident", 0, 2, 1, 1),
    Sketcher.Constraint("Coincident", 1, 2, 2, 1),
    Sketcher.Constraint("Coincident", 2, 2, 3, 1),
    Sketcher.Constraint("Coincident", 3, 2, 4, 1),
    Sketcher.Constraint("Coincident", 4, 2, 5, 1),
    Sketcher.Constraint("Coincident", 5, 2, 6, 1),
    Sketcher.Constraint("Coincident", 6, 2, 7, 1),
    Sketcher.Constraint("Coincident", 7, 2, 8, 1),
    Sketcher.Constraint("Coincident", 8, 2, 9, 1),
    Sketcher.Constraint("Coincident", 9, 2, 10, 1),
    Sketcher.Constraint("Coincident", 10, 2, 11, 1),
    Sketcher.Constraint("Coincident", 11, 2, 12, 1),
    Sketcher.Constraint("Coincident", 12, 2, 13, 1),
    Sketcher.Constraint("Coincident", 13, 2, 14, 1),
    Sketcher.Constraint("Coincident", 14, 2, 15, 1),
    Sketcher.Constraint("Coincident", 15, 2, 16, 1),
    Sketcher.Constraint("Coincident", 16, 2, 17, 1),
    Sketcher.Constraint("Coincident", 17, 2, 18, 1),
    Sketcher.Constraint("Coincident", 18, 2, 19, 1),
    Sketcher.Constraint("Coincident", 19, 2, 20, 1),
    Sketcher.Constraint("Coincident", 20, 2, 21, 1),
    Sketcher.Constraint("Coincident", 21, 2, 22, 1),
    Sketcher.Constraint("Coincident", 22, 2, 23, 1),
    Sketcher.Constraint("Coincident", 23, 2, 24, 1),
    Sketcher.Constraint("Coincident", 24, 2, 25, 1),
    Sketcher.Constraint("Coincident", 25, 2, 26, 1),
    Sketcher.Constraint("Coincident", 26, 2, 27, 1),
    Sketcher.Constraint("Coincident", 27, 2, 0, 1),
    Sketcher.Constraint("Horizontal", 2),
    Sketcher.Constraint("Vertical", 6),
    Sketcher.Constraint("Horizontal", 16),
    Sketcher.Constraint("Vertical", 26),
    Sketcher.Constraint("Perpendicular", 1, 5),
    Sketcher.Constraint("Perpendicular", 7, 17),
    Sketcher.Constraint("Perpendicular", 10, 20),
    Sketcher.Constraint("Perpendicular", 11, 21),
    Sketcher.Constraint("Perpendicular", 12, 22),
    Sketcher.Constraint("Perpendicular", 15, 25),
    Sketcher.Constraint("Horizontal", 14, 2, 17, 2),
    Sketcher.Constraint("Horizontal", 13, 2, 18, 2),
    Sketcher.Constraint("Horizontal", 12, 2, 19, 2),
    Sketcher.Constraint("Horizontal", 11, 2, 20, 2),
    Sketcher.Constraint("Horizontal", 10, 2, 21, 2),
    Sketcher.Constraint("Horizontal", 9, 2, 22, 2),
    Sketcher.Constraint("Horizontal", 8, 2, 23, 2),
    Sketcher.Constraint("Horizontal", 7, 2, 24, 2),
    Sketcher.Constraint("Horizontal", 6, 2, 25, 2),
    Sketcher.Constraint("Horizontal", 5, 2, 26, 2),
    Sketcher.Constraint("Equal", 1, 5),
    Sketcher.Constraint("Equal", 10, 12),
    Sketcher.Constraint("Equal", 7, 15),
    Sketcher.Constraint("Equal", 15, 17),
    Sketcher.Constraint("Equal", 14, 18),
    Sketcher.Constraint("Equal", 13, 19),
    Sketcher.Constraint("Equal", 12, 20),
    Sketcher.Constraint("Equal", 11, 21),
    Sketcher.Constraint("Equal", 9, 23),
    Sketcher.Constraint("Equal", 8, 24),
    Sketcher.Constraint("DistanceY", 7, 2, 3, 2, 1.0),
    Sketcher.Constraint("DistanceX", 14, 2, 16, 2, 1.1),
    Sketcher.Constraint("DistanceX", 2, 2, 2, 1, 1.252),
    Sketcher.Constraint("DistanceX", 16, 1, 16, 2, 1.076),
    Sketcher.Constraint("DistanceY", 6, 2, 6, 1, 0.864),
    Sketcher.Constraint("DistanceY", -1, 1, 6, 2, 3.44),
    Sketcher.Constraint("DistanceX", -1, 1, 7, 2, 23.64),
    Sketcher.Constraint("DistanceY", -1, 1, 14, 2, 3.23),
    Sketcher.Constraint("DistanceX", -1, 1, 15, 2, 23.85),
    Sketcher.Constraint("DistanceX", -1, 1, 18, 2, 24.99),
    Sketcher.Constraint("DistanceY", 0, 2, 1, 2, 0.02),
    Sketcher.Constraint("DistanceX", 3, 2, 0, 2, 1.37),
    Sketcher.Constraint("DistanceX", 6, 2, 8, 2, 0.01),
    Sketcher.Constraint("DistanceY", 9, 2, 4, 2, 1.04),
    Sketcher.Constraint("DistanceX", 9, 2, 11, 2, 0.05),
    Sketcher.Constraint("DistanceY", 15, 2, 13, 2, 0.01),
    Sketcher.Constraint("DistanceY", 16, 2, 0, 2, 1.18),
    Sketcher.Constraint("DistanceX", -1, 1, 0, 2, 25.081),
    Sketcher.Constraint("DistanceY", -1, 1, 0, 2, 4.408),
    Sketcher.Constraint("DistanceX", -1, 1, 1, 2, 25.014),
    Sketcher.Constraint("DistanceY", -1, 1, 8, 2, 3.375),
    Sketcher.Constraint("DistanceX", -1, 1, 9, 2, 23.667),
    Sketcher.Constraint("DistanceX", -1, 1, 10, 2, 23.683),
    Sketcher.Constraint("DistanceY", -1, 1, 10, 2, 3.307),
    Sketcher.Constraint("DistanceX", -1, 1, 27, 2, 25.127),
    Sketcher.Constraint("DistanceY", -1, 1, 27, 2, 4.355),
])
pad2 = body2.newObject("PartDesign::Pad", "Pad001")
pad2.Profile = sketch2
pad2.Length = 0.2
body2.Visibility = False

doc.recompute()
